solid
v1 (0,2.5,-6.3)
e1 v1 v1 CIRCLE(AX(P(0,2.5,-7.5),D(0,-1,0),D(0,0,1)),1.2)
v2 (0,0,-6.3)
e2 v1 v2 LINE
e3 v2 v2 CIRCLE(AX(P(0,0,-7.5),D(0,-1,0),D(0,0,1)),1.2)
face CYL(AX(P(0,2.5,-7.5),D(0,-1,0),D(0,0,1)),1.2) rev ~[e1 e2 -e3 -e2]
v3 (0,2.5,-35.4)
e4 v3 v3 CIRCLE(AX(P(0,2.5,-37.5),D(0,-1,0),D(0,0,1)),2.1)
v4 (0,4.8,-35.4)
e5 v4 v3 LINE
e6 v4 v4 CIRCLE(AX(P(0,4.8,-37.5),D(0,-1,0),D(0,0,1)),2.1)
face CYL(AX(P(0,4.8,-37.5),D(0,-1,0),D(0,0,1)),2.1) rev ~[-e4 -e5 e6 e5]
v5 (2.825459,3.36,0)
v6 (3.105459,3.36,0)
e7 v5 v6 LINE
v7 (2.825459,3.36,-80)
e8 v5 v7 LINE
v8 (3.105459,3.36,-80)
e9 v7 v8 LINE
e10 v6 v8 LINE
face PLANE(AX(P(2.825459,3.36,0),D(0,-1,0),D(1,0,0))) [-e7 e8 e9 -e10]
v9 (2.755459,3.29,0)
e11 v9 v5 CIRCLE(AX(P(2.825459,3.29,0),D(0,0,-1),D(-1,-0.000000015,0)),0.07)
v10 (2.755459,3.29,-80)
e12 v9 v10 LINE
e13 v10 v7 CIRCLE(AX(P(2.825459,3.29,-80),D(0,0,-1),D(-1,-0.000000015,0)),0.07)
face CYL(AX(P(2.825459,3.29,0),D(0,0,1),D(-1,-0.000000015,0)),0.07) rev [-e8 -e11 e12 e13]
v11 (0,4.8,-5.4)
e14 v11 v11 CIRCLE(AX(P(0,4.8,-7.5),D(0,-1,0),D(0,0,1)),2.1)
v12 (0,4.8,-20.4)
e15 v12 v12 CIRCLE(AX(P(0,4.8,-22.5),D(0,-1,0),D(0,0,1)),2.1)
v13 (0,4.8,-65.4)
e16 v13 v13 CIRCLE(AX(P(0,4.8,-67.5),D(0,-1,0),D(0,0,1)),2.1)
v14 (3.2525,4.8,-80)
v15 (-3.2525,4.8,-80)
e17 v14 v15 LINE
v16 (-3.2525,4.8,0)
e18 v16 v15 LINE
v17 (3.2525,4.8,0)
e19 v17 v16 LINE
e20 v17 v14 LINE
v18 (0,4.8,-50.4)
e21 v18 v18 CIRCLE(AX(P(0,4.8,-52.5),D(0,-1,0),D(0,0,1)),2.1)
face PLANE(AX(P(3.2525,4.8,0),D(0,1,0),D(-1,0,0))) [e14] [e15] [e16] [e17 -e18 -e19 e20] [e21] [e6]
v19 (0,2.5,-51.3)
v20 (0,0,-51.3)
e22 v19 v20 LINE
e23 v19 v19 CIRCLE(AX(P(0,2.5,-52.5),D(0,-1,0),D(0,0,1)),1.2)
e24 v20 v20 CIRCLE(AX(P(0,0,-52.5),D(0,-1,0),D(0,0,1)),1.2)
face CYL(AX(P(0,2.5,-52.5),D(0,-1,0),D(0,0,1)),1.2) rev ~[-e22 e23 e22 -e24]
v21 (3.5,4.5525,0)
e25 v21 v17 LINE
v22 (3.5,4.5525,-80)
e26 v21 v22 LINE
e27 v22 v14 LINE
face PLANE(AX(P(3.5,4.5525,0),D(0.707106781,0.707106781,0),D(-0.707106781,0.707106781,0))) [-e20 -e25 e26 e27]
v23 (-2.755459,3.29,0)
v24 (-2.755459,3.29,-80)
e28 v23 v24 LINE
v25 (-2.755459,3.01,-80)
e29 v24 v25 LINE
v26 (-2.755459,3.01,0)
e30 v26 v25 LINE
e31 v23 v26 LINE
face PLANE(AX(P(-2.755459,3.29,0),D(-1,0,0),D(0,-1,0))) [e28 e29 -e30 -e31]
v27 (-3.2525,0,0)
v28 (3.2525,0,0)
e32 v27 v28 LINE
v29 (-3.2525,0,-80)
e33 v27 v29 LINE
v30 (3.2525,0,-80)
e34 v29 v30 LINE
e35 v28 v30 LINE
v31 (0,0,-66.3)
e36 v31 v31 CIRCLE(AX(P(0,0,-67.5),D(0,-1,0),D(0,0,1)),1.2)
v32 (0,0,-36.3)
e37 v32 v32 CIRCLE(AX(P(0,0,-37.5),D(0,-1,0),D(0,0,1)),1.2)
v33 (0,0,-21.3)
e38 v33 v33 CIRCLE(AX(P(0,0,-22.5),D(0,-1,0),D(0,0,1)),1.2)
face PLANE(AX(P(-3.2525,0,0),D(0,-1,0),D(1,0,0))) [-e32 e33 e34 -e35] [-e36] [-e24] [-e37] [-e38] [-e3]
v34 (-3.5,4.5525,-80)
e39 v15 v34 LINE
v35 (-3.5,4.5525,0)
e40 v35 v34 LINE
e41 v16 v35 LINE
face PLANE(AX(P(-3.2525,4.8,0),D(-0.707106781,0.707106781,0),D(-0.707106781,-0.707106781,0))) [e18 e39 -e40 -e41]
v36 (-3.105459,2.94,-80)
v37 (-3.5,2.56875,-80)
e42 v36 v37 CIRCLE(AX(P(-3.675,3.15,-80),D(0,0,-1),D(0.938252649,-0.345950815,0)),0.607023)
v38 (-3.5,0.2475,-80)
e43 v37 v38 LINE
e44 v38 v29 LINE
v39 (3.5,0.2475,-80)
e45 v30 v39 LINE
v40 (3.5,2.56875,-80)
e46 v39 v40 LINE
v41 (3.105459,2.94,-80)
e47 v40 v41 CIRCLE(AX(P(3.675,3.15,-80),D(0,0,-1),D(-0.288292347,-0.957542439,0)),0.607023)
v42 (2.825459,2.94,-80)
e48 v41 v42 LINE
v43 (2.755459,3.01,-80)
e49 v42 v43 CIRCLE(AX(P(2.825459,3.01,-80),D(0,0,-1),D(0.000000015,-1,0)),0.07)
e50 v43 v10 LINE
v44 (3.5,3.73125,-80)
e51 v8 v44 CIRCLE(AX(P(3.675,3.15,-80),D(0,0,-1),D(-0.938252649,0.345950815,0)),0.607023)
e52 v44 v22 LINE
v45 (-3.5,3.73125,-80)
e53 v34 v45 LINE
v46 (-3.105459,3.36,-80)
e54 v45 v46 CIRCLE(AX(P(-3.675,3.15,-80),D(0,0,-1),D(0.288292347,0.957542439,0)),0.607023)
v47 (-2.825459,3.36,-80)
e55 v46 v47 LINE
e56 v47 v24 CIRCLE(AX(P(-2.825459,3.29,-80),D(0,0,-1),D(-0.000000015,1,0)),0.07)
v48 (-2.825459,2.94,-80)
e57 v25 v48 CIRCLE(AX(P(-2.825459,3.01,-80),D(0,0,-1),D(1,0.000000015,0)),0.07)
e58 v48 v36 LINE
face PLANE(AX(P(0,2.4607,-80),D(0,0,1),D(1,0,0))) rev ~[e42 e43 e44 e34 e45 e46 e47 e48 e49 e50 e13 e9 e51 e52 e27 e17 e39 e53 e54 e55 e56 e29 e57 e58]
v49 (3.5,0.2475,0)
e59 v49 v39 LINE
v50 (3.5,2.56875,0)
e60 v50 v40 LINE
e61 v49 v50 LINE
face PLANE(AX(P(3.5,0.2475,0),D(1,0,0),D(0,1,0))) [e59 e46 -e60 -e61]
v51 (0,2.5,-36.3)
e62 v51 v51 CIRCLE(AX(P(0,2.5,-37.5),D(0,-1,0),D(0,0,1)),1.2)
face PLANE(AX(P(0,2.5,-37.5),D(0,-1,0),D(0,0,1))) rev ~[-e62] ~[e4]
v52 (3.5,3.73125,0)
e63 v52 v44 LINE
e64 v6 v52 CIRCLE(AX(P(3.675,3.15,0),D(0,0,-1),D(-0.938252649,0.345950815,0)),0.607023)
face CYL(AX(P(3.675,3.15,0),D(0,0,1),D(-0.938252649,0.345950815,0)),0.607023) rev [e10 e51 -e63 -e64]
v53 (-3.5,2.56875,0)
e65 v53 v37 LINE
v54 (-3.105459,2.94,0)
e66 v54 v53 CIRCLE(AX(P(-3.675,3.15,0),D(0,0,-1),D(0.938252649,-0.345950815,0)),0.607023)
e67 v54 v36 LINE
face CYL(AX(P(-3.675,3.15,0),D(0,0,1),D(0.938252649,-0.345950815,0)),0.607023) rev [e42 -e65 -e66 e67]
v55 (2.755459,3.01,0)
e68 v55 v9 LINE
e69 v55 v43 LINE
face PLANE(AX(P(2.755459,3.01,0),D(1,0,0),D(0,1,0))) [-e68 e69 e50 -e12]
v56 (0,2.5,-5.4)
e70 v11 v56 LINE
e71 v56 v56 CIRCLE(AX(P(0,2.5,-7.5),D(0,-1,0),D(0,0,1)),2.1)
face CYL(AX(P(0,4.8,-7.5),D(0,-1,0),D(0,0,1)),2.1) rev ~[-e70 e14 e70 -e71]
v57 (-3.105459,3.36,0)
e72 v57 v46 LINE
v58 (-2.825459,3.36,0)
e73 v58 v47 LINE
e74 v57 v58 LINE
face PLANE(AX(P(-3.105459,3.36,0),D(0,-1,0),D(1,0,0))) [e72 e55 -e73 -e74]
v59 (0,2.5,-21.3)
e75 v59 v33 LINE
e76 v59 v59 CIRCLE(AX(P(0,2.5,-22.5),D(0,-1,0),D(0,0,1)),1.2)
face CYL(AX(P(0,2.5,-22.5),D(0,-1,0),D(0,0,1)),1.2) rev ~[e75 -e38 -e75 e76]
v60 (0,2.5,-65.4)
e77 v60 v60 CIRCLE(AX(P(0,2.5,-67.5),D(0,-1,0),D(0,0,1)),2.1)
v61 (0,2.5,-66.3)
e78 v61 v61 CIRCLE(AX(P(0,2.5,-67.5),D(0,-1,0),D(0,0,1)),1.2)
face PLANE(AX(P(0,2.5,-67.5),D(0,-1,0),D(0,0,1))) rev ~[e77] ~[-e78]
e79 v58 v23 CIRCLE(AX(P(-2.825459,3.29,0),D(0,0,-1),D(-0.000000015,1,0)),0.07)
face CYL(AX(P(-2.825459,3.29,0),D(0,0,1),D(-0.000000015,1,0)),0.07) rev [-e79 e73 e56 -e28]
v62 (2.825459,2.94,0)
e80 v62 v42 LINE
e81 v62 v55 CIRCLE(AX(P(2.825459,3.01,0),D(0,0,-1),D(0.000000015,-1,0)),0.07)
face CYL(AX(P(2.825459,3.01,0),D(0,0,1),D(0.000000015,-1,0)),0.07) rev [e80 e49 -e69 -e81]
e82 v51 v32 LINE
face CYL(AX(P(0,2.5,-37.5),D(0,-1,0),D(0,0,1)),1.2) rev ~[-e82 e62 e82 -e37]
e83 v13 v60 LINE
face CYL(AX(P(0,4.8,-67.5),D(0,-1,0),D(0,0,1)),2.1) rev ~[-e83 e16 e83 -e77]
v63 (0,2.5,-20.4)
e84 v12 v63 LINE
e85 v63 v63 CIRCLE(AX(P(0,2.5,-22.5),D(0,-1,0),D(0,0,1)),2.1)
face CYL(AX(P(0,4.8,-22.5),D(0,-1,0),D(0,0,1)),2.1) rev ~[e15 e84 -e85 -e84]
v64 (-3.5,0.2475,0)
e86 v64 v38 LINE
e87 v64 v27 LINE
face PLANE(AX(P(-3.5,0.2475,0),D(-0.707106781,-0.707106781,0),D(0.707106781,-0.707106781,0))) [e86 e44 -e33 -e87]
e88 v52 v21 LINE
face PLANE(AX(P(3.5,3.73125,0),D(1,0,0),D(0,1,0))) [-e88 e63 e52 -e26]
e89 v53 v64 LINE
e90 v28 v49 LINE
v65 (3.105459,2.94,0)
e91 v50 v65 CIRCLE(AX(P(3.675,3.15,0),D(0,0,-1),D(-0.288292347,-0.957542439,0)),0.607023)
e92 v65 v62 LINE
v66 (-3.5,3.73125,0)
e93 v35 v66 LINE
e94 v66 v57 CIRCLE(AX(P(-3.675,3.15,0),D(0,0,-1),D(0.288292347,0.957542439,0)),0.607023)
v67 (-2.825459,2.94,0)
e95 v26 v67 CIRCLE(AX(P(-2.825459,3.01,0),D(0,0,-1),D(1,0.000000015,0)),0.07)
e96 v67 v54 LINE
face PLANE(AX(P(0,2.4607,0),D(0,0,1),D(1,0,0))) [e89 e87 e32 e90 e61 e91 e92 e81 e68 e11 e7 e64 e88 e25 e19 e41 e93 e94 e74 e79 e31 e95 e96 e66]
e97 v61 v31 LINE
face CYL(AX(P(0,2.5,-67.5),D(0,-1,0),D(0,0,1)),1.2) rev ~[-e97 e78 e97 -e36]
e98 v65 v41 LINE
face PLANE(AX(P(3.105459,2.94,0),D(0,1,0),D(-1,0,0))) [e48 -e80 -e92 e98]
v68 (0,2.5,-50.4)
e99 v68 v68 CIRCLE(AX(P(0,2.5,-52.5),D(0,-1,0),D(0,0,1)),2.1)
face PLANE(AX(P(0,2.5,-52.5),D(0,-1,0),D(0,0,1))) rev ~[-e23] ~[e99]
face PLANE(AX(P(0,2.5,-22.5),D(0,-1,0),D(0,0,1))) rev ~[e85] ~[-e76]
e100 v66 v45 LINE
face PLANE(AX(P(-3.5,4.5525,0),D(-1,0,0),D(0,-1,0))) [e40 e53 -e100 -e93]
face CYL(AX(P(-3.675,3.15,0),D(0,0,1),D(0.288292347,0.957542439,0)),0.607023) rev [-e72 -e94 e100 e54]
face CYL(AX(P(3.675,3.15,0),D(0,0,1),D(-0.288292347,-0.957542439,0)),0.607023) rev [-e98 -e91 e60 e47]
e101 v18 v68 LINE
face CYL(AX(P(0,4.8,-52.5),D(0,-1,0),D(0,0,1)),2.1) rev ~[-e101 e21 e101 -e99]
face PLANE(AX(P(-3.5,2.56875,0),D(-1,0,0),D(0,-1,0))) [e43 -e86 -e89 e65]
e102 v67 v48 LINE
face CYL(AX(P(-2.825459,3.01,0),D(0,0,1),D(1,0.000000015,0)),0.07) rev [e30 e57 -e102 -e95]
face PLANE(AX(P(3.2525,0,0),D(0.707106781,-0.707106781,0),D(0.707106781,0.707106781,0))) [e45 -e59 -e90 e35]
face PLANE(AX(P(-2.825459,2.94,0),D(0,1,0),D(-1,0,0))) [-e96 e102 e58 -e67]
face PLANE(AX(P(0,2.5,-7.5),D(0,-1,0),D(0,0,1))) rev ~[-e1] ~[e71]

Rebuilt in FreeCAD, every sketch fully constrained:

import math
import FreeCAD as App
import Part
import Sketcher


def add_polygon(sketch, points):
    """Adds a closed chain of lines whose ends are joined by coincident constraints."""
    first, n = sketch.GeometryCount, len(points)
    for a, b in zip(points, points[1:] + points[:1]):
        sketch.addGeometry(Part.LineSegment(App.Vector(*a, 0), App.Vector(*b, 0)), False)
    for i in range(n):
        sketch.addConstraint(Sketcher.Constraint("Coincident", first + i, 2, first + (i + 1) % n, 1))

doc = App.newDocument("Part")
body = doc.addObject("PartDesign::Body", "Body")

# Sketch on XY plane
sketch1 = body.newObject("Sketcher::SketchObject", "Sketch")
sketch1.AttachmentSupport = (doc.getObject("XY_Plane"), [""])
sketch1.MapMode = "FlatFace"
sketch1.addGeometry([
    Part.LineSegment(App.Vector(3.25, 4.8, 0), App.Vector(-3.25, 4.8, 0)),  # 0
    Part.LineSegment(App.Vector(-3.25, 4.8, 0), App.Vector(-3.5, 4.55, 0)),  # 1
    Part.LineSegment(App.Vector(-3.5, 4.55, 0), App.Vector(-3.5, 3.73, 0)),  # 2
    Part.ArcOfCircle(Part.Circle(App.Vector(-3.67, 3.15, 0), App.Vector(0, 0, 1), 0.61), math.radians(20), math.radians(73)),  # 3
    Part.LineSegment(App.Vector(-3.11, 3.36, 0), App.Vector(-2.83, 3.36, 0)),  # 4
    Part.ArcOfCircle(Part.Circle(App.Vector(-2.83, 3.29, 0), App.Vector(0, 0, 1), 0.07), math.radians(0), math.radians(90)),  # 5
    Part.LineSegment(App.Vector(-2.76, 3.29, 0), App.Vector(-2.76, 3.01, 0)),  # 6
    Part.ArcOfCircle(Part.Circle(App.Vector(-2.83, 3.01, 0), App.Vector(0, 0, 1), 0.07), math.radians(-90), math.radians(0)),  # 7
    Part.LineSegment(App.Vector(-2.83, 2.94, 0), App.Vector(-3.11, 2.94, 0)),  # 8
    Part.ArcOfCircle(Part.Circle(App.Vector(-3.67, 3.15, 0), App.Vector(0, 0, 1), 0.61), math.radians(-73), math.radians(-20)),  # 9
    Part.LineSegment(App.Vector(-3.5, 2.57, 0), App.Vector(-3.5, 0.25, 0)),  # 10
    Part.LineSegment(App.Vector(-3.5, 0.25, 0), App.Vector(-3.25, 0, 0)),  # 11
    Part.LineSegment(App.Vector(-3.25, 0, 0), App.Vector(3.25, 0, 0)),  # 12
    Part.LineSegment(App.Vector(3.25, 0, 0), App.Vector(3.5, 0.25, 0)),  # 13
    Part.LineSegment(App.Vector(3.5, 0.25, 0), App.Vector(3.5, 2.57, 0)),  # 14
    Part.ArcOfCircle(Part.Circle(App.Vector(3.67, 3.15, 0), App.Vector(0, 0, 1), 0.61), math.radians(-160), math.radians(-107)),  # 15
    Part.LineSegment(App.Vector(3.11, 2.94, 0), App.Vector(2.83, 2.94, 0)),  # 16
    Part.ArcOfCircle(Part.Circle(App.Vector(2.83, 3.01, 0), App.Vector(0, 0, 1), 0.07), math.radians(180), math.radians(270)),  # 17
    Part.LineSegment(App.Vector(2.76, 3.01, 0), App.Vector(2.76, 3.29, 0)),  # 18
    Part.ArcOfCircle(Part.Circle(App.Vector(2.83, 3.29, 0), App.Vector(0, 0, 1), 0.07), math.radians(90), math.radians(180)),  # 19
    Part.LineSegment(App.Vector(2.83, 3.36, 0), App.Vector(3.11, 3.36, 0)),  # 20
    Part.ArcOfCircle(Part.Circle(App.Vector(3.67, 3.15, 0), App.Vector(0, 0, 1), 0.61), math.radians(107), math.radians(160)),  # 21
    Part.LineSegment(App.Vector(3.5, 3.73, 0), App.Vector(3.5, 4.55, 0)),  # 22
    Part.LineSegment(App.Vector(3.5, 4.55, 0), App.Vector(3.25, 4.8, 0)),  # 23
], False)
sketch1.addConstraint([
    Sketcher.Constraint("Coincident", 0, 2, 1, 1),
    Sketcher.Constraint("Coincident", 1, 2, 2, 1),
    Sketcher.Constraint("Coincident", 2, 2, 3, 2),
    Sketcher.Constraint("Coincident", 3, 1, 4, 1),
    Sketcher.Constraint("Tangent", 4, 2, 5, 2),
    Sketcher.Constraint("Tangent", 5, 1, 6, 1),
    Sketcher.Constraint("Tangent", 6, 2, 7, 2),
    Sketcher.Constraint("Tangent", 7, 1, 8, 1),
    Sketcher.Constraint("Coincident", 8, 2, 9, 2),
    Sketcher.Constraint("Coincident", 9, 1, 10, 1),
    Sketcher.Constraint("Coincident", 10, 2, 11, 1),
    Sketcher.Constraint("Coincident", 11, 2, 12, 1),
    Sketcher.Constraint("Coincident", 12, 2, 13, 1),
    Sketcher.Constraint("Coincident", 13, 2, 14, 1),
    Sketcher.Constraint("Coincident", 14, 2, 15, 2),
    Sketcher.Constraint("Coincident", 15, 1, 16, 1),
    Sketcher.Constraint("Tangent", 16, 2, 17, 2),
    Sketcher.Constraint("Tangent", 17, 1, 18, 1),
    Sketcher.Constraint("Tangent", 18, 2, 19, 2),
    Sketcher.Constraint("Tangent", 19, 1, 20, 1),
    Sketcher.Constraint("Coincident", 20, 2, 21, 2),
    Sketcher.Constraint("Coincident", 21, 1, 22, 1),
    Sketcher.Constraint("Coincident", 22, 2, 23, 1),
    Sketcher.Constraint("Coincident", 23, 2, 0, 1),
    Sketcher.Constraint("Horizontal", 0),
    Sketcher.Constraint("Vertical", 2),
    Sketcher.Constraint("Horizontal", 4),
    Sketcher.Constraint("Vertical", 6),
    Sketcher.Constraint("Horizontal", 8),
    Sketcher.Constraint("Vertical", 10),
    Sketcher.Constraint("Horizontal", 12),
    Sketcher.Constraint("Vertical", 14),
    Sketcher.Constraint("Horizontal", 16),
    Sketcher.Constraint("Vertical", 18),
    Sketcher.Constraint("Horizontal", 20),
    Sketcher.Constraint("Vertical", 22),
    Sketcher.Constraint("Coincident", 9, 3, 3, 3),
    Sketcher.Constraint("Coincident", 21, 3, 15, 3),
    Sketcher.Constraint("Equal", 5, 7),
    Sketcher.Constraint("Equal", 3, 9),
    Sketcher.Constraint("Equal", 9, 15),
    Sketcher.Constraint("Equal", 7, 17),
    Sketcher.Constraint("Equal", 17, 19),
    Sketcher.Constraint("Equal", 15, 21),
    Sketcher.Constraint("Symmetric", 11, 2, 12, 2, -1, 1),
    Sketcher.Constraint("Symmetric", 3, 3, 15, 3, -2),
    Sketcher.Constraint("Symmetric", 7, 3, 17, 3, -2),
    Sketcher.Constraint("Symmetric", 10, 2, 13, 2, -2),
    Sketcher.Constraint("Symmetric", 1, 2, 22, 2, -2),
    Sketcher.Constraint("Perpendicular", 1, 11),
    Sketcher.Constraint("Perpendicular", 11, 13),
    Sketcher.Constraint("Perpendicular", 13, 23),
    Sketcher.Constraint("Horizontal", 5, 3, 19, 3),
    Sketcher.Constraint("Vertical", 3, 1, 8, 2),
    Sketcher.Constraint("Vertical", 2, 2, 9, 1),
    Sketcher.Constraint("Vertical", 0, 2, 11, 2),
    Sketcher.Constraint("Equal", 20, 6),
    Sketcher.Constraint("Radius", 5, 0.07),
    Sketcher.Constraint("DistanceX", 4, 1, 4, 2, 0.28),
    Sketcher.Constraint("DistanceY", -1, 1, 0, 2, 4.8),
    Sketcher.Constraint("DistanceX", 1, 2, -1, 1, 3.5),
    Sketcher.Constraint("DistanceX", 0, 2, 0, 1, 6.505),
    Sketcher.Constraint("DistanceY", -1, 1, 3, 3, 3.15),
    Sketcher.Constraint("DistanceX", 3, 3, 15, 3, 7.35),
    Sketcher.Constraint("Radius", 3, 0.607023),
])
pad1 = body.newObject("PartDesign::Pad", "Pad")
pad1.Profile = sketch1
pad1.Length = 80
pad1.Reversed = True

# Sketch on YZ plane
sketch2 = body.newObject("Sketcher::SketchObject", "Sketch001")
sketch2.AttachmentSupport = (doc.getObject("YZ_Plane"), [""])
sketch2.MapMode = "FlatFace"
add_polygon(sketch2, [(4.8, -5.4), (2.5, -5.4), (2.5, -6.3), (0, -6.3), (0, -7.5), (4.8, -7.5)])  # lines 0-5
sketch2.addGeometry(Part.LineSegment(App.Vector(4.8, -7.5, 0), App.Vector(0, -7.5, 0)), True)  # axis
sketch2.addConstraint([
    Sketcher.Constraint("Horizontal", 0),
    Sketcher.Constraint("Vertical", 1),
    Sketcher.Constraint("Horizontal", 2),
    Sketcher.Constraint("Vertical", 3),
    Sketcher.Constraint("Horizontal", 4),
    Sketcher.Constraint("Vertical", 5),
    Sketcher.Constraint("Horizontal", 6),
    Sketcher.Constraint("Coincident", 6, 1, 4, 2),
    Sketcher.Constraint("PointOnObject", 2, 2, -2),
    Sketcher.Constraint("PointOnObject", 6, 2, -2),
    Sketcher.Constraint("DistanceX", 0, 2, 0, 1, 2.3),
    Sketcher.Constraint("DistanceX", 2, 2, 2, 1, 2.5),
    Sketcher.Constraint("DistanceY", 1, 2, 1, 1, 0.9),
    Sketcher.Constraint("DistanceY", 3, 2, 3, 1, 1.2),
    Sketcher.Constraint("DistanceY", 0, 2, -1, 1, 5.4),
])
groove = body.newObject("PartDesign::Groove", "Groove")
groove.Profile = sketch2
groove.ReferenceAxis = (sketch2, ["Axis0"])
groove.Angle = 360
doc.recompute()

linearpattern = body.newObject("PartDesign::LinearPattern", "LinearPattern")
linearpattern.Originals = [groove]
linearpattern.Direction = (doc.getObject("Z_Axis"), [""])
linearpattern.Mode = "offset"
linearpattern.Offset = 15
linearpattern.Occurrences = 5
linearpattern.Reversed = True
body.Tip = linearpattern

doc.recompute()
